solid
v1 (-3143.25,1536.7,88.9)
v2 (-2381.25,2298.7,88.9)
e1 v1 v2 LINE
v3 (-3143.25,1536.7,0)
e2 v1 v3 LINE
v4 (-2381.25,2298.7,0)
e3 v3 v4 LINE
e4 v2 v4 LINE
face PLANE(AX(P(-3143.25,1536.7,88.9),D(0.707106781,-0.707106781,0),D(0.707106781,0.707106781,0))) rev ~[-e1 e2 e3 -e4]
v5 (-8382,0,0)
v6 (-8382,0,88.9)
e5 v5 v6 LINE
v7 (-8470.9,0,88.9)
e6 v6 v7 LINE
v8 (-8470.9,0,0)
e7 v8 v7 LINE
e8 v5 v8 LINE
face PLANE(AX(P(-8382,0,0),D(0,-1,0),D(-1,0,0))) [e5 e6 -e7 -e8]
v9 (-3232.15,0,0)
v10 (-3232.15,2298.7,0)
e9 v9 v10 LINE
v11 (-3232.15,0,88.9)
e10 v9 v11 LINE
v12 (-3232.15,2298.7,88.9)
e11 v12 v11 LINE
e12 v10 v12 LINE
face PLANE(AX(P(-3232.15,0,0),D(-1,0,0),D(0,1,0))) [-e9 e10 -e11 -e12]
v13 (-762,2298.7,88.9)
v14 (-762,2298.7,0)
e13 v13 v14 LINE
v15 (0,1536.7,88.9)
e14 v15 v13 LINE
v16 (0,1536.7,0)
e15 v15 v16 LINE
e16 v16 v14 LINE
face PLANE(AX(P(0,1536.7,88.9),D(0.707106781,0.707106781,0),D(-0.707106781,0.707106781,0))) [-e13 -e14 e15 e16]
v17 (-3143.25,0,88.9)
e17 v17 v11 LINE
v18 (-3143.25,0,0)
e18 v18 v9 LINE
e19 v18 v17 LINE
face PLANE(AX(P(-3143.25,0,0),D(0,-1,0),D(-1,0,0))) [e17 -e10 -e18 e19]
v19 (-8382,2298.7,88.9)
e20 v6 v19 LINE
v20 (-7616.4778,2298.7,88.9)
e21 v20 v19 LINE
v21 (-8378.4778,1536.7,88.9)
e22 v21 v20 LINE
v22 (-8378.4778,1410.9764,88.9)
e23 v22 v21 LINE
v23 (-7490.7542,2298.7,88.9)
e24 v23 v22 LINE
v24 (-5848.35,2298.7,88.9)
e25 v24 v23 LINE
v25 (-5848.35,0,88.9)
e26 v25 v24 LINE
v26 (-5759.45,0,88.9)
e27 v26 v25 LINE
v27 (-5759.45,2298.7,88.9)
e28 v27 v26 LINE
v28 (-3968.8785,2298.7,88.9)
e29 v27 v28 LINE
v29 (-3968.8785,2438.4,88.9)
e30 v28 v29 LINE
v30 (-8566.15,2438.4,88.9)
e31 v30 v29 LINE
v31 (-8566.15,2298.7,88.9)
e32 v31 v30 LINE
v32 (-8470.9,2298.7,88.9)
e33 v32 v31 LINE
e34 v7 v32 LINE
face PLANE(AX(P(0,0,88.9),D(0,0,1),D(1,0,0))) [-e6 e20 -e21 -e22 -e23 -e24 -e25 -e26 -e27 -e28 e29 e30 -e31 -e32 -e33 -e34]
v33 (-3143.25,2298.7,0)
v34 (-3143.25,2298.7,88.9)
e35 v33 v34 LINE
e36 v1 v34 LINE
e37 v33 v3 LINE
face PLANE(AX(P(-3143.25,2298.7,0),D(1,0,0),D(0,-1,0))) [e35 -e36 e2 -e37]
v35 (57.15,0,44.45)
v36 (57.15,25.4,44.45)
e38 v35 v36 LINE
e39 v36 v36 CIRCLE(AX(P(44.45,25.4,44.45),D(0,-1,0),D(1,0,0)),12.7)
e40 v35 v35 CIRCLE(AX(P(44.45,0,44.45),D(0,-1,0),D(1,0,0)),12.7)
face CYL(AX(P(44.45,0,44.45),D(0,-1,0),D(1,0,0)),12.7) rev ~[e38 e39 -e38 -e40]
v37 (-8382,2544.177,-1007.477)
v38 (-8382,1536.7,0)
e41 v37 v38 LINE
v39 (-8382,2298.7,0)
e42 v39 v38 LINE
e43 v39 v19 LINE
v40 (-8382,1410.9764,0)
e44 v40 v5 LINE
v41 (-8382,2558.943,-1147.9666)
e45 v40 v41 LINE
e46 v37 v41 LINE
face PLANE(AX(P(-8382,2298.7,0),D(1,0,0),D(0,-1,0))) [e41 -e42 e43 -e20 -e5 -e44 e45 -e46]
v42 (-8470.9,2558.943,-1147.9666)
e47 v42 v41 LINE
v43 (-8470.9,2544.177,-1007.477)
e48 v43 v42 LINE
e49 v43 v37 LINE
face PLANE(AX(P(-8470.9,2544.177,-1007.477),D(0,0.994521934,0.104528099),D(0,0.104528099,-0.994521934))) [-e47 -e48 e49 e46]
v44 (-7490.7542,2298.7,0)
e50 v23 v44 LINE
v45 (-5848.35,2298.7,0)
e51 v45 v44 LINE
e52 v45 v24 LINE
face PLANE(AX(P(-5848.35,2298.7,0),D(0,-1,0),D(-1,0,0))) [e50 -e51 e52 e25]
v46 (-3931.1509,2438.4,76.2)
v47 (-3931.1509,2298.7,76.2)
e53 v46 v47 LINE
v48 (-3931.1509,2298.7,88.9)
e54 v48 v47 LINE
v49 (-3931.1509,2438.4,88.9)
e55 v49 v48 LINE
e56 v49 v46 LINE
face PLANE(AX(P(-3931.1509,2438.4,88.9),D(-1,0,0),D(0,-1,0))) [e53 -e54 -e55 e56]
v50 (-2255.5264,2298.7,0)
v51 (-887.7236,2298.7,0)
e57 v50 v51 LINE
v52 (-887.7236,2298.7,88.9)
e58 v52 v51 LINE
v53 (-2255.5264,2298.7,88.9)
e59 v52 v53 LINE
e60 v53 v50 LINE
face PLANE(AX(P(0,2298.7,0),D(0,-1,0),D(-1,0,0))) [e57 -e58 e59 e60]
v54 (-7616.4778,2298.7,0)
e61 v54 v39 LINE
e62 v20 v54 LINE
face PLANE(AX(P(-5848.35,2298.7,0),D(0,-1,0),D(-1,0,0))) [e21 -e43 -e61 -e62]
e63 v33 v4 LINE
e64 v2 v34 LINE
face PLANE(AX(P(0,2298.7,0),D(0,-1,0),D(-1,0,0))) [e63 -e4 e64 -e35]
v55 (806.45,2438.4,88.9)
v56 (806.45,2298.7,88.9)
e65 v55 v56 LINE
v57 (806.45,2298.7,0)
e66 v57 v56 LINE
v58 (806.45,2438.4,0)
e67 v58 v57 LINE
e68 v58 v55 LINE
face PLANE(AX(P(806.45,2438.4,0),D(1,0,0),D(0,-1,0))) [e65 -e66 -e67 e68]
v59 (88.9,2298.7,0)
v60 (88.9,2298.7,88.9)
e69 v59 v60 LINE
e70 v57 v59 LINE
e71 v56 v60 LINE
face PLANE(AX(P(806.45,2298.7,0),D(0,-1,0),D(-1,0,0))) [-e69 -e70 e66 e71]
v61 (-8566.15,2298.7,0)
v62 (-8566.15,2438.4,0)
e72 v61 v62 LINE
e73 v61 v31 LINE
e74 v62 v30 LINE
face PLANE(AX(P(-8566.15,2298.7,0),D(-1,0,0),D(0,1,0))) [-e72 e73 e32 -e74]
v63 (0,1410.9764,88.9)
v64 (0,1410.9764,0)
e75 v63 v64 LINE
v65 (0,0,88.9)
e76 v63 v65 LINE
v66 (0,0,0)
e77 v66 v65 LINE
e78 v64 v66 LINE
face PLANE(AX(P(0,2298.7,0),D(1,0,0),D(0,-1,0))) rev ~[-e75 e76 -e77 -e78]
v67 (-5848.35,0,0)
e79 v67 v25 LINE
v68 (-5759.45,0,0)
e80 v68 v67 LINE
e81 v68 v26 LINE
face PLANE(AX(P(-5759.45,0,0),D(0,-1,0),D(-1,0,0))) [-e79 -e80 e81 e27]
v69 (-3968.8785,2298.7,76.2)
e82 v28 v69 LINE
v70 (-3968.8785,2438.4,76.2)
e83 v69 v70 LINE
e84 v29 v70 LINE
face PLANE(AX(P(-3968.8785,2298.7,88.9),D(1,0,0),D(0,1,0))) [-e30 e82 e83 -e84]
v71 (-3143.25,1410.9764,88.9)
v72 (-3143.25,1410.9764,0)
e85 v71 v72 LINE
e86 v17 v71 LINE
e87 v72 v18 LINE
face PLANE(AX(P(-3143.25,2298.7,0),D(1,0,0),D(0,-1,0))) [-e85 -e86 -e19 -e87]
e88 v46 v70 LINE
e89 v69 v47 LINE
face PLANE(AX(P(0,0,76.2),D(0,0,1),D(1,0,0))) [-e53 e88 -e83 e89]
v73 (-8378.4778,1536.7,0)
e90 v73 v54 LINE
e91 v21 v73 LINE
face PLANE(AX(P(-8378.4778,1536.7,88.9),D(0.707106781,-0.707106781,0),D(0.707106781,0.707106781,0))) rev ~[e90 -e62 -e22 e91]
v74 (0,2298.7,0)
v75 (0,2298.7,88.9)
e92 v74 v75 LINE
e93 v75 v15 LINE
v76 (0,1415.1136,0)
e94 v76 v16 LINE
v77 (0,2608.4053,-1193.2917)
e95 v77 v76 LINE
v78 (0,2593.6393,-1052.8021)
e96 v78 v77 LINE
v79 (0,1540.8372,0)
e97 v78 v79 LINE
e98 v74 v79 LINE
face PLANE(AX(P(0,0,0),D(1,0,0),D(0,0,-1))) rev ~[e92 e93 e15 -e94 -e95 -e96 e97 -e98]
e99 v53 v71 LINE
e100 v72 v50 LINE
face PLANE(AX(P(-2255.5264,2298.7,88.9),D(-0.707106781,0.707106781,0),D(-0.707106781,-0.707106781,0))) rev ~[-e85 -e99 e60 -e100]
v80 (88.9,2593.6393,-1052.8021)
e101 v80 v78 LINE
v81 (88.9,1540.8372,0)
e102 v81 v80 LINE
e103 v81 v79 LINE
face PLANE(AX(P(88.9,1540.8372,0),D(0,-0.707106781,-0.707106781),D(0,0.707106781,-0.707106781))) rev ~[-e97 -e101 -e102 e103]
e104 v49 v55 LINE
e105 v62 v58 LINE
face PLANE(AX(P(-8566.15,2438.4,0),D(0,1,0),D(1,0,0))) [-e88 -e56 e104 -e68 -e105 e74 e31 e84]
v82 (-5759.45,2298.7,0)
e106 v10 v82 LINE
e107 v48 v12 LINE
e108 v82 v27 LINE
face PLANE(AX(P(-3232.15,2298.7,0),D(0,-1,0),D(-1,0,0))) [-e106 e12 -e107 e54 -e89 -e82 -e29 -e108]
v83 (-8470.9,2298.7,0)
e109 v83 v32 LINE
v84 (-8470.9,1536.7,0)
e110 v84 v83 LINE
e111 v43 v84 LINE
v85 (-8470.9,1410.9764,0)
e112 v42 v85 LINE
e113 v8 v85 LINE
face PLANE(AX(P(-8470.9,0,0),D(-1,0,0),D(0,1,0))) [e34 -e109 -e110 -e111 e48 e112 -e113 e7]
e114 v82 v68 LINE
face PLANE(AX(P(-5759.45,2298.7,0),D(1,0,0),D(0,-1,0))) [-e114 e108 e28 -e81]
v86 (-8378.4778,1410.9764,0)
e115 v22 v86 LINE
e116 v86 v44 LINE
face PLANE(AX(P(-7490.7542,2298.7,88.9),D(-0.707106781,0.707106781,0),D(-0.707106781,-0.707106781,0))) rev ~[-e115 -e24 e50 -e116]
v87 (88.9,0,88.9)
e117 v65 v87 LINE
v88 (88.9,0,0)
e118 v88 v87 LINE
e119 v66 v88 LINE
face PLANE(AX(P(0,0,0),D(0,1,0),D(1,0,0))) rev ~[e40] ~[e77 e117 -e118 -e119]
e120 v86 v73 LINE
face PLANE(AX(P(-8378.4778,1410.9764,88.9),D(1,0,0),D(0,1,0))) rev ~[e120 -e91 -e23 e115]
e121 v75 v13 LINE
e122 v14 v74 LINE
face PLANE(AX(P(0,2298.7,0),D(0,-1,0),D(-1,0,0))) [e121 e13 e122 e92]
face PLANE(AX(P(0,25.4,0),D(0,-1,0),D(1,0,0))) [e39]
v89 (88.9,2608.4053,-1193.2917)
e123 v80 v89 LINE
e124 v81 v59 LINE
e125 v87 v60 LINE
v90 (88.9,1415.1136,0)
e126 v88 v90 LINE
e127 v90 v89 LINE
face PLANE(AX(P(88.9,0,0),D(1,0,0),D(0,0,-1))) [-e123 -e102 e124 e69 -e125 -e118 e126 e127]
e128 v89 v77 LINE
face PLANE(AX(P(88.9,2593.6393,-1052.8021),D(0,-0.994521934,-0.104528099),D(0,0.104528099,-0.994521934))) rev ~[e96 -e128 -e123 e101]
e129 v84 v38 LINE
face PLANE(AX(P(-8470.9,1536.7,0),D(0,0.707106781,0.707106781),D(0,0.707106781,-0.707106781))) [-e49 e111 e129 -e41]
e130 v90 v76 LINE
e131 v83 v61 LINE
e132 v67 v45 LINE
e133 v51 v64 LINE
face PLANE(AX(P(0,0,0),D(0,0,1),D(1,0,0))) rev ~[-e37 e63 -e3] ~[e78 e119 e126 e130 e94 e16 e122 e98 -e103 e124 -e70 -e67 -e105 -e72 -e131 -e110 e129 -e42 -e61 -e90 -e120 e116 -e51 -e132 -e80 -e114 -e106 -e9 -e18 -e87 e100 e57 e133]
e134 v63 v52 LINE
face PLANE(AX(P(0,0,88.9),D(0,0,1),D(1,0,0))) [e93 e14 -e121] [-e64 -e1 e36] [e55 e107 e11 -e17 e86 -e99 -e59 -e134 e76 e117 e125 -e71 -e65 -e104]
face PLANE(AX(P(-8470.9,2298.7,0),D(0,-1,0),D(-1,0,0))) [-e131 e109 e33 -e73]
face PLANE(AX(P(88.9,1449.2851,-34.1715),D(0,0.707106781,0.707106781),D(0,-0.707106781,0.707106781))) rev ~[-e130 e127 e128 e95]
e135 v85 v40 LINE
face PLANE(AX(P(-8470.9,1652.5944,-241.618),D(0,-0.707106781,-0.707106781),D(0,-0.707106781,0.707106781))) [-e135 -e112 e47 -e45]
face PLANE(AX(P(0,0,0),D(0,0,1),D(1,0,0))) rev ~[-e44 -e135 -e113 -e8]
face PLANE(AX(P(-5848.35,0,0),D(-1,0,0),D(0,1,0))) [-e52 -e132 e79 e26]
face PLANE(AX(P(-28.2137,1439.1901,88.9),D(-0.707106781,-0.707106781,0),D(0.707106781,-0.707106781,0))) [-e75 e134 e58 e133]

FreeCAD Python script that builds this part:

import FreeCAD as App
import Part
import Sketcher
Q = App.Units.Quantity


def add_polygon(sketch, points):
    """Adds a closed chain of lines whose ends are joined by coincident constraints."""
    first, n = sketch.GeometryCount, len(points)
    for a, b in zip(points, points[1:] + points[:1]):
        sketch.addGeometry(Part.LineSegment(App.Vector(*a, 0), App.Vector(*b, 0)), False)
    for i in range(n):
        sketch.addConstraint(Sketcher.Constraint("Coincident", first + i, 2, first + (i + 1) % n, 1))

doc = App.newDocument("Part")
body = doc.addObject("PartDesign::Body", "Body")

# Sketch on XY plane
sketch1 = body.newObject("Sketcher::SketchObject", "Sketch")
sketch1.AttachmentSupport = (doc.getObject("XY_Plane"), [""])
sketch1.MapMode = "FlatFace"
add_polygon(sketch1, [(0, 2299), (0, 0), (89, 0), (89, 2299), (806, 2299), (806, 2438), (-8566, 2438), (-8566, 2299), (-8471, 2299), (-8471, 0), (-8382, 0), (-8382, 2299), (-5848, 2299), (-5848, 0), (-5759, 0), (-5759, 2299), (-3232, 2299), (-3232, 0), (-3143, 0), (-3143, 2299)])  # lines 0-19
sketch1.addConstraint([
    Sketcher.Constraint("Vertical", 0),
    Sketcher.Constraint("Horizontal", 1),
    Sketcher.Constraint("Vertical", 2),
    Sketcher.Constraint("Horizontal", 3),
    Sketcher.Constraint("Vertical", 4),
    Sketcher.Constraint("Horizontal", 5),
    Sketcher.Constraint("Vertical", 6),
    Sketcher.Constraint("Horizontal", 7),
    Sketcher.Constraint("Vertical", 8),
    Sketcher.Constraint("Horizontal", 9),
    Sketcher.Constraint("Vertical", 10),
    Sketcher.Constraint("Horizontal", 11),
    Sketcher.Constraint("Vertical", 12),
    Sketcher.Constraint("Horizontal", 13),
    Sketcher.Constraint("Vertical", 14),
    Sketcher.Constraint("Horizontal", 15),
    Sketcher.Constraint("Vertical", 16),
    Sketcher.Constraint("Horizontal", 17),
    Sketcher.Constraint("Vertical", 18),
    Sketcher.Constraint("Horizontal", 19),
    Sketcher.Constraint("Coincident", 0, 2, -1, 1),
    Sketcher.Constraint("PointOnObject", 8, 2, -1),
    Sketcher.Constraint("PointOnObject", 12, 2, -1),
    Sketcher.Constraint("PointOnObject", 16, 2, -1),
    Sketcher.Constraint("Horizontal", 3, 2, 6, 2),
    Sketcher.Constraint("Horizontal", 7, 2, 10, 2),
    Sketcher.Constraint("Horizontal", 11, 2, 14, 2),
    Sketcher.Constraint("Horizontal", 15, 2, 18, 2),
    Sketcher.Constraint("Equal", 1, 9),
    Sketcher.Constraint("Equal", 9, 13),
    Sketcher.Constraint("Equal", 13, 17),
    Sketcher.Constraint("DistanceX", 5, 2, 5, 1, Q("369 in")),
    Sketcher.Constraint("DistanceX", 1, 1, 1, 2, Q("3.5 in")),
    Sketcher.Constraint("DistanceY", 0, 2, 0, 1, Q("90.5 in")),
    Sketcher.Constraint("DistanceY", 4, 1, 4, 2, Q("5.5 in")),
    Sketcher.Constraint("DistanceX", 11, 2, 15, 2, Q("103 in")),
    Sketcher.Constraint("DistanceX", 15, 2, -1, 1, Q("127.25 in")),
    Sketcher.Constraint("DistanceX", 7, 2, 11, 2, Q("103.25 in")),
    Sketcher.Constraint("DistanceX", 6, 2, 11, 2, Q("107 in")),
])
pad1 = body.newObject("PartDesign::Pad", "Pad")
pad1.Profile = sketch1
pad1.Length = Q("3.5 in")

# Sketch on XY plane
sketch2 = body.newObject("Sketcher::SketchObject", "Sketch001")
sketch2.AttachmentSupport = (doc.getObject("XY_Plane"), [""])
sketch2.MapMode = "FlatFace"
sketch2.AttachmentOffset = App.Placement(App.Vector(0, 0, 3.5 * 25.4), App.Rotation())
add_polygon(sketch2, [(-762, 2299), (-888, 2299), (0, 1411), (0, 1537)])  # lines 0-3
add_polygon(sketch2, [(-3143, 1537), (-3143, 1411), (-2256, 2299), (-2381, 2299)])  # lines 4-7
add_polygon(sketch2, [(-7491, 2299), (-7616, 2299), (-8378, 1537), (-8378, 1411)])  # lines 8-11
sketch2.addConstraint([
    Sketcher.Constraint("Horizontal", 0),
    Sketcher.Constraint("Vertical", 2),
    Sketcher.Constraint("Vertical", 4),
    Sketcher.Constraint("Horizontal", 6),
    Sketcher.Constraint("Horizontal", 8),
    Sketcher.Constraint("Vertical", 10),
    Sketcher.Constraint("PointOnObject", 1, 2, -2),
    Sketcher.Constraint("Parallel", 1, 3),
    Sketcher.Constraint("Perpendicular", 3, 5),
    Sketcher.Constraint("Parallel", 5, 7),
    Sketcher.Constraint("Parallel", 7, 9),
    Sketcher.Constraint("Parallel", 9, 11),
    Sketcher.Constraint("Horizontal", 1, 2, 4, 2),
    Sketcher.Constraint("Horizontal", 3, 2, 5, 2),
    Sketcher.Constraint("Horizontal", 2, 2, 7, 2),
    Sketcher.Constraint("Horizontal", 6, 2, 8, 2),
    Sketcher.Constraint("Horizontal", 7, 2, 9, 2),
    Sketcher.Constraint("Horizontal", 4, 2, 10, 2),
    Sketcher.Constraint("Equal", 0, 6),
    Sketcher.Constraint("DistanceX", 3, 2, -1, 1, Q("30 in")),
    Sketcher.Constraint("DistanceY", -1, 1, 0, 2, Q("90.5 in")),
    Sketcher.Constraint("DistanceX", 4, 2, -1, 1, Q("123.75 in")),
    Sketcher.Constraint("Distance", 1, Q("49.4264 in")),
    Sketcher.Constraint("DistanceX", 8, 2, -1, 1, 7616.4778),
])
pad2 = body.newObject("PartDesign::Pad", "Pad001")
pad2.Profile = sketch2
pad2.Length = Q("3.5 in")
pad2.Reversed = True

# Sketch on XZ plane
sketch3 = body.newObject("Sketcher::SketchObject", "Sketch002")
sketch3.AttachmentSupport = (doc.getObject("XZ_Plane"), [""])
sketch3.MapMode = "FlatFace"
sketch3.addGeometry(Part.Circle(App.Vector(44, 44, 0), App.Vector(0, 0, 1), 13), False)
sketch3.addConstraint([
    Sketcher.Constraint("Diameter", 0, Q("1 in")),
    Sketcher.Constraint("DistanceX", -1, 1, 0, 3, Q("1.75 in")),
    Sketcher.Constraint("DistanceY", -1, 1, 0, 3, Q("1.75 in")),
])
pocket1 = body.newObject("PartDesign::Pocket", "Pocket")
pocket1.Profile = sketch3
pocket1.Length = Q("1 in")

# Sketch on YZ plane
sketch4 = body.newObject("Sketcher::SketchObject", "Sketch003")
sketch4.AttachmentSupport = (doc.getObject("YZ_Plane"), [""])
sketch4.MapMode = "FlatFace"
sketch4.AttachmentOffset = App.Placement(App.Vector(0, 0, -333.5 * 25.4), App.Rotation())
add_polygon(sketch4, [(1411, 0), (1537, 0), (2544, -1007), (2559, -1148)])  # lines 0-3
sketch4.addConstraint([
    Sketcher.Constraint("Horizontal", 0),
    Sketcher.Constraint("PointOnObject", 0, 2, -1),
    Sketcher.Constraint("Parallel", 1, 3),
    Sketcher.Constraint("Angle", 1, Q("-45 deg")),
    Sketcher.Constraint("Angle", 2, Q("-84 deg")),
    Sketcher.Constraint("DistanceX", -1, 1, 0, 2, Q("60.5 in")),
    Sketcher.Constraint("Distance", 1, Q("56.094 in")),
    Sketcher.Constraint("DistanceX", 0, 1, 0, 2, 125.7236),
])
pad3 = body.newObject("PartDesign::Pad", "Pad002")
pad3.Profile = sketch4
pad3.Length = Q("3.5 in")

# Sketch on YZ plane
sketch5 = body.newObject("Sketcher::SketchObject", "Sketch004")
sketch5.AttachmentSupport = (doc.getObject("YZ_Plane"), [""])
sketch5.MapMode = "FlatFace"
sketch5.AttachmentOffset = App.Placement(App.Vector(0, 0, 3.5 * 25.4), App.Rotation())
add_polygon(sketch5, [(1541, 0), (1415, 0), (2608, -1193), (2594, -1053)])  # lines 0-3
sketch5.addConstraint([
    Sketcher.Constraint("Horizontal", 0),
    Sketcher.Constraint("PointOnObject", 0, 2, -1),
    Sketcher.Constraint("Parallel", 1, 3),
    Sketcher.Constraint("Angle", 1, Q("-45 deg")),
    Sketcher.Constraint("Angle", 2, Q("96 deg")),
    Sketcher.Constraint("DistanceY", 1, 2, -1, 1, Q("46.98 in")),
    Sketcher.Constraint("Distance", 3, Q("58.6176 in")),
    Sketcher.Constraint("DistanceX", -1, 1, 0, 2, 1415.1136),
])
pad4 = body.newObject("PartDesign::Pad", "Pad003")
pad4.Profile = sketch5
pad4.Length = Q("3.5 in")
pad4.Reversed = True

# Sketch on XY plane
sketch6 = body.newObject("Sketcher::SketchObject", "Sketch005")
sketch6.AttachmentSupport = (doc.getObject("XY_Plane"), [""])
sketch6.MapMode = "FlatFace"
sketch6.AttachmentOffset = App.Placement(App.Vector(0, 0, 3.5 * 25.4), App.Rotation())
add_polygon(sketch6, [(-3931, 2299), (-3931, 2438), (-3969, 2438), (-3969, 2299)])  # lines 0-3
sketch6.addConstraint([
    Sketcher.Constraint("Vertical", 0),
    Sketcher.Constraint("Horizontal", 1),
    Sketcher.Constraint("Vertical", 2),
    Sketcher.Constraint("Horizontal", 3),
    Sketcher.Constraint("DistanceY", 0, 1, 0, 2, Q("5.5 in")),
    Sketcher.Constraint("DistanceY", -1, 1, 0, 2, Q("96 in")),
    Sketcher.Constraint("DistanceX", 1, 2, 1, 1, 37.7276),
    Sketcher.Constraint("DistanceX", 0, 2, -1, 1, 3931.151),
])
pocket2 = body.newObject("PartDesign::Pocket", "Pocket001")
pocket2.Profile = sketch6
pocket2.Length = Q("0.5 in")

doc.recompute()
